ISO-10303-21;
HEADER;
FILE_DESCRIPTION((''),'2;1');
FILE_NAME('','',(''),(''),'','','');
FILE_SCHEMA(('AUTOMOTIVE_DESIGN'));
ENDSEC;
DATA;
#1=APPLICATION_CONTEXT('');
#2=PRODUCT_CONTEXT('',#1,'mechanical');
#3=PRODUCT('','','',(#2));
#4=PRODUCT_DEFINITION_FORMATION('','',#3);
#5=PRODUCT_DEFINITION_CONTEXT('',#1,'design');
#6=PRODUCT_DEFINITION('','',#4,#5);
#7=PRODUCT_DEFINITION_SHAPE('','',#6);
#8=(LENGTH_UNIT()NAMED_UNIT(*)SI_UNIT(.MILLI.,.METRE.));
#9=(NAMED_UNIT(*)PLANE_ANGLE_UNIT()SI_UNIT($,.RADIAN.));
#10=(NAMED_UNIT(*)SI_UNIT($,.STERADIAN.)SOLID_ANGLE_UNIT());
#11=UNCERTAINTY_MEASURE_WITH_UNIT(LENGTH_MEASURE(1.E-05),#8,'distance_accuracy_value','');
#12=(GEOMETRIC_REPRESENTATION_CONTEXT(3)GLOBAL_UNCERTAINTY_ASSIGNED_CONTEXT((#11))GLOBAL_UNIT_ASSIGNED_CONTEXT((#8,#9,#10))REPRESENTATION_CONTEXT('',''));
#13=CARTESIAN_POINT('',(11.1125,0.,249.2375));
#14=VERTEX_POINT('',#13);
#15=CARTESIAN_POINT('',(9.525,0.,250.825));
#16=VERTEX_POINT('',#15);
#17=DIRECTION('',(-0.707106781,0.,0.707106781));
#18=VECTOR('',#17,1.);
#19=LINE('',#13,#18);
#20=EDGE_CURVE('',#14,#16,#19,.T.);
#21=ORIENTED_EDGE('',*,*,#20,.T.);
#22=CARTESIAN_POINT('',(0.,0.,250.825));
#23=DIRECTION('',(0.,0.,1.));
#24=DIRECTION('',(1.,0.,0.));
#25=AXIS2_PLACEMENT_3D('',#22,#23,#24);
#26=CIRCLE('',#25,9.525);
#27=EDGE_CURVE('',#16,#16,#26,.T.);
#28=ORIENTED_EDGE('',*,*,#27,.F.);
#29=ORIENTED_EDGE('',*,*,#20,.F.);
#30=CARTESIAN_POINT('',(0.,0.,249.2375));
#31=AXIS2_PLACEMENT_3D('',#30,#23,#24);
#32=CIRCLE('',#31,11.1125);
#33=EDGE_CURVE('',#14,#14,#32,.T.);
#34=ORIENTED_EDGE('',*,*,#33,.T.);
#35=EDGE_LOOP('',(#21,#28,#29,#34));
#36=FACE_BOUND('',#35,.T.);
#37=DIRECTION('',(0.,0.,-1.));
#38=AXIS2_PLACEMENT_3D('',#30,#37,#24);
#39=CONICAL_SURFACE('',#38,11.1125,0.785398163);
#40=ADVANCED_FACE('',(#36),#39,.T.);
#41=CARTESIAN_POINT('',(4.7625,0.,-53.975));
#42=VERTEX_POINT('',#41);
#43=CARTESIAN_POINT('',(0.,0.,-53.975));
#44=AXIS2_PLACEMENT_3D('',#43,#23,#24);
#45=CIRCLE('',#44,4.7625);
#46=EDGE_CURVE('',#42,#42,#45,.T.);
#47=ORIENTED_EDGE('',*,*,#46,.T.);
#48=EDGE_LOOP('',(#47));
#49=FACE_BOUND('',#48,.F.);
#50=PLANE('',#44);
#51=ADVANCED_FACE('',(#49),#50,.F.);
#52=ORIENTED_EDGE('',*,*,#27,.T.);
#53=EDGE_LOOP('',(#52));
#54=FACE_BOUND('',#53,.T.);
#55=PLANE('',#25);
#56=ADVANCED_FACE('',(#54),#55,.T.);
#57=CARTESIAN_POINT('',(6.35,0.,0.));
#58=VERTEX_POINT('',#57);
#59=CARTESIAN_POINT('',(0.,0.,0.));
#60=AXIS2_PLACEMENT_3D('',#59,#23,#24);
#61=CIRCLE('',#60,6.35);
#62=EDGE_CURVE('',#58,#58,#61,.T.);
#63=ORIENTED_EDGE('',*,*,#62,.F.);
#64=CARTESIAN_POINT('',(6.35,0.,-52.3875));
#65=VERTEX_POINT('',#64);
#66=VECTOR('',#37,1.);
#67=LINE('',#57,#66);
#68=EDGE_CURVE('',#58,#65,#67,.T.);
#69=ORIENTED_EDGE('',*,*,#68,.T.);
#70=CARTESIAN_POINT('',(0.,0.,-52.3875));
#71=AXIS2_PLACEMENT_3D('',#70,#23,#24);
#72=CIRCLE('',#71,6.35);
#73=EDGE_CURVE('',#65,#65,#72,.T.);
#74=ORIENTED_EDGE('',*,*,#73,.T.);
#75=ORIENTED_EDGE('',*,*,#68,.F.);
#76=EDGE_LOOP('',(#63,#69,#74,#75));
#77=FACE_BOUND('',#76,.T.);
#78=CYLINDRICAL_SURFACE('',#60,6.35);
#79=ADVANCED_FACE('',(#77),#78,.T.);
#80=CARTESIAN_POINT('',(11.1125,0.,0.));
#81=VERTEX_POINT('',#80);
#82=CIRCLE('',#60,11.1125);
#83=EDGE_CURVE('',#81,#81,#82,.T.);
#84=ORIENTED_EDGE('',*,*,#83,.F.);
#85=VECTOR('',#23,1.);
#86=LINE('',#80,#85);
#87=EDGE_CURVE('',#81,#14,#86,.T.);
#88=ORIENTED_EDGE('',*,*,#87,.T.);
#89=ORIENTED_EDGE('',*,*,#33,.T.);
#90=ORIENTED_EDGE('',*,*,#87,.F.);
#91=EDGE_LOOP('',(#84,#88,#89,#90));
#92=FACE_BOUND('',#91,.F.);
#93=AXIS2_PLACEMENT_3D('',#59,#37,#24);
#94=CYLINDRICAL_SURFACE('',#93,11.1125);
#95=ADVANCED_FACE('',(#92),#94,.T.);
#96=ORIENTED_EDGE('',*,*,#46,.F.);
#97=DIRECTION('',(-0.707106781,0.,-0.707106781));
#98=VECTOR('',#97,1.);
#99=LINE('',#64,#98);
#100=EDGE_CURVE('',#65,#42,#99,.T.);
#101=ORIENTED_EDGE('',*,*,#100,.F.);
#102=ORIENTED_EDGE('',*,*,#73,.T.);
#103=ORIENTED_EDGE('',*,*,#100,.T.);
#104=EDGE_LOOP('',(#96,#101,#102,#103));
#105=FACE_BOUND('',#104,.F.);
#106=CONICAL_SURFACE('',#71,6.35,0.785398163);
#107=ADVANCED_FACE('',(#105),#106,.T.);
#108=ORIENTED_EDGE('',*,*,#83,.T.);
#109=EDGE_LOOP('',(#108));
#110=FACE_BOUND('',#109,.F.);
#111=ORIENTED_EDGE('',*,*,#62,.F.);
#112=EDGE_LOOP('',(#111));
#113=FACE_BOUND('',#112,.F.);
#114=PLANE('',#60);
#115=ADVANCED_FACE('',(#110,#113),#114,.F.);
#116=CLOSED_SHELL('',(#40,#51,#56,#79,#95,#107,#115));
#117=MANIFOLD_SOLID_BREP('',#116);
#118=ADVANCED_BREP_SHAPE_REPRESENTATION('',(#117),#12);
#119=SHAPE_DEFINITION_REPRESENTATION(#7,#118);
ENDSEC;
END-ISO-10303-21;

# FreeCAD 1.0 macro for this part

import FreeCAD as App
import Part
import Sketcher

V = App.Vector
Q = App.Units.Quantity


def edges_at(feature, points):
    """Names of the edges that pass closest to the given points."""
    edges = feature.Shape.Edges
    near = lambda p: min(range(len(edges)), key=lambda i: edges[i].distToShape(Part.Vertex(*p))[0])
    return sorted({f"Edge{near(p) + 1}" for p in points})

doc = App.newDocument("Part")
body = doc.addObject("PartDesign::Body", "Body")

# Sketch on XY plane
sketch1 = body.newObject("Sketcher::SketchObject", "Sketch")
sketch1.AttachmentSupport = (doc.getObject("XY_Plane"), [""])
sketch1.MapMode = "FlatFace"
sketch1.addGeometry(Part.Circle(V(0, 0, 0), V(0, 0, 1), 11), False)
sketch1.addConstraint([
    Sketcher.Constraint("Coincident", 0, 3, -1, 1),
    Sketcher.Constraint("Diameter", 0, Q("0.875 in")),
])
pad1 = body.newObject("PartDesign::Pad", "Pad")
pad1.Profile = sketch1
pad1.Length = Q("9.875 in")

# Sketch on XY plane
sketch2 = body.newObject("Sketcher::SketchObject", "Sketch001")
sketch2.AttachmentSupport = (doc.getObject("XY_Plane"), [""])
sketch2.MapMode = "FlatFace"
sketch2.addGeometry(Part.Circle(V(0, 0, 0), V(0, 0, 1), 6), False)
sketch2.addConstraint([
    Sketcher.Constraint("Coincident", 0, 3, -1, 1),
    Sketcher.Constraint("Diameter", 0, Q("0.5 in")),
])
pad2 = body.newObject("PartDesign::Pad", "Pad001")
pad2.Profile = sketch2
pad2.Length = Q("2.125 in")
pad2.Reversed = True
doc.recompute()

chamfer = body.newObject("PartDesign::Chamfer", "Chamfer")
chamfer.Base = (pad2, edges_at(pad2, [(-11.113, 0, 250.825), (-6.35, 0, -53.975)]))
chamfer.ChamferType = "Two distances"
chamfer.Size = Q("0.0625 in")
chamfer.Size2 = Q("0.0625 in")

doc.recompute()
